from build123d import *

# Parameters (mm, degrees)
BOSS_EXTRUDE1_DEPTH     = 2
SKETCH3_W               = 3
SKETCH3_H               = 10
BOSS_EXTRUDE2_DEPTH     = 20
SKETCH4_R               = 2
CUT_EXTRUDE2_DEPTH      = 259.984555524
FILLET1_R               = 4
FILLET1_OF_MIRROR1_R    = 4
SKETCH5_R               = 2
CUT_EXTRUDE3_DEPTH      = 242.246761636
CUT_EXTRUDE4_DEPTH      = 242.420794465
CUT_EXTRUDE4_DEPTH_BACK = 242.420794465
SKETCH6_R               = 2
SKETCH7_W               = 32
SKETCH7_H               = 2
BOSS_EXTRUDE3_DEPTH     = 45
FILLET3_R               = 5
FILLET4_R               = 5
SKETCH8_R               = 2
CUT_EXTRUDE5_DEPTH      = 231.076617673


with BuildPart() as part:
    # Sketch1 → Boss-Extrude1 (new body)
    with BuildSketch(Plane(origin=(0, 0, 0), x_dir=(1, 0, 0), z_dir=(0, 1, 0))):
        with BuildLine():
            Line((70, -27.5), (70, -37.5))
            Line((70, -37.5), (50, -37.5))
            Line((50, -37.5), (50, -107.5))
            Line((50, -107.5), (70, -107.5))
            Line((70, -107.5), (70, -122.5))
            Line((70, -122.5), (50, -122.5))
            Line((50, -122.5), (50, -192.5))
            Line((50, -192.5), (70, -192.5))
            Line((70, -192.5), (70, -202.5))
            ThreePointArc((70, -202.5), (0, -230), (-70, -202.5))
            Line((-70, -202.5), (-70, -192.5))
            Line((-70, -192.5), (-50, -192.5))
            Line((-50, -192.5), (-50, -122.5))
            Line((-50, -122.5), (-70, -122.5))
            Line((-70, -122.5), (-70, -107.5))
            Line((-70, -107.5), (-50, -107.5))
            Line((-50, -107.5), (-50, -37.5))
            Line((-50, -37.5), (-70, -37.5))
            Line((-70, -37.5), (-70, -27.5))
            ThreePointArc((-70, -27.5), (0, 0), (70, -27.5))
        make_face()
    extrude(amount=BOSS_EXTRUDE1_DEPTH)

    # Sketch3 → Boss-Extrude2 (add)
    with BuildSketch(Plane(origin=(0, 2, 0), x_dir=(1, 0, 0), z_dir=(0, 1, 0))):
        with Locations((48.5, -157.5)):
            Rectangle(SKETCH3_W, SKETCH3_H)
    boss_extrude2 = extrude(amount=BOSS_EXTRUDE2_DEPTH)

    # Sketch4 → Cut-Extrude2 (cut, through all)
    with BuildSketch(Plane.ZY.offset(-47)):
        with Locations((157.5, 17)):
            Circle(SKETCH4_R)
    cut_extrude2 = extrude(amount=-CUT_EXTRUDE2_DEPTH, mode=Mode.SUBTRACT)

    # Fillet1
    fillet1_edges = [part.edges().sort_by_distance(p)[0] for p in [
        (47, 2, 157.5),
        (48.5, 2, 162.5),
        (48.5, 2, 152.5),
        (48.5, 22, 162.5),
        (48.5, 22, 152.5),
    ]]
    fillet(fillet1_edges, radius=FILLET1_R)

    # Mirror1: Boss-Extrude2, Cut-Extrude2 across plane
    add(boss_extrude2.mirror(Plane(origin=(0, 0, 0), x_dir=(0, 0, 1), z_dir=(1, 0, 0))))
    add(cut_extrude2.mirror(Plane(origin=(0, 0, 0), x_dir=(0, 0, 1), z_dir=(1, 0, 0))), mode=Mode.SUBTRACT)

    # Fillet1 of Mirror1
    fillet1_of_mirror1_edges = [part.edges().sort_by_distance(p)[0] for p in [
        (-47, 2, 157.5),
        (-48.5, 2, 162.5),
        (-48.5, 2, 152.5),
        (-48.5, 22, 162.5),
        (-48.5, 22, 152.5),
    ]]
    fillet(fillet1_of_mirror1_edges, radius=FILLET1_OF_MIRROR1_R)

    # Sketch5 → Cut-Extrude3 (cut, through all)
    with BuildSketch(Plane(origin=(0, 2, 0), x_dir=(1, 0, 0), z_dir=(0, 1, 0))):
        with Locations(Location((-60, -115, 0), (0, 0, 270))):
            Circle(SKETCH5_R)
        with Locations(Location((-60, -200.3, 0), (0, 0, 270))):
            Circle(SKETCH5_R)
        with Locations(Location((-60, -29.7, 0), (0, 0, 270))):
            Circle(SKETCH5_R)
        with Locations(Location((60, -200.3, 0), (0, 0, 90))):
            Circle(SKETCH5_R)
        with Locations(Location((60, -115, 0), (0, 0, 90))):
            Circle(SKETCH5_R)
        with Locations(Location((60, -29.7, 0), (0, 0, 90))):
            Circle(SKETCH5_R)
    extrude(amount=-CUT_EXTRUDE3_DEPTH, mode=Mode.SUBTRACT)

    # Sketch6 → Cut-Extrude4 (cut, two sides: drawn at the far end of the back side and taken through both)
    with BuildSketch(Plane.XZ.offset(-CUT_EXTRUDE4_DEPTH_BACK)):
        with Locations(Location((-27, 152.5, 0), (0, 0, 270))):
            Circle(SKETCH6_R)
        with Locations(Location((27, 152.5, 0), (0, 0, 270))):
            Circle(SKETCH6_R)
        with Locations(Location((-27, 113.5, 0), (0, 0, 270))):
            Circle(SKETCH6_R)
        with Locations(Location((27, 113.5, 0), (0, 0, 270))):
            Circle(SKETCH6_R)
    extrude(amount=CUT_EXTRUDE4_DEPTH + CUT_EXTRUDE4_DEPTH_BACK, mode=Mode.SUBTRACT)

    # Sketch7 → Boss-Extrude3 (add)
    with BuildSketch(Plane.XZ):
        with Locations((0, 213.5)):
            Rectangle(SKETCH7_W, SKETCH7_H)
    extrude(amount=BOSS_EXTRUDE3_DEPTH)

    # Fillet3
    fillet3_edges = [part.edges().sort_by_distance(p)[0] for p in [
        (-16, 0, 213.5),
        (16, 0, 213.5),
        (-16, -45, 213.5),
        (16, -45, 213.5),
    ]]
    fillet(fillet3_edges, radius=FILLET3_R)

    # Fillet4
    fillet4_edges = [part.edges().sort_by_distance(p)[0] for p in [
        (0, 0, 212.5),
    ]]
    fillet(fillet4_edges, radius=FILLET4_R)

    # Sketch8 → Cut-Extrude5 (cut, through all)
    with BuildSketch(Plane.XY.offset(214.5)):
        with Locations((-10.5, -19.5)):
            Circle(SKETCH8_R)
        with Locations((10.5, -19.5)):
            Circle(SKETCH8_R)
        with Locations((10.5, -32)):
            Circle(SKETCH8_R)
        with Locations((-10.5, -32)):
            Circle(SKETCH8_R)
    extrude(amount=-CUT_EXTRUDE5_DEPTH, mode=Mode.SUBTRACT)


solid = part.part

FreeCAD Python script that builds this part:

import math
import FreeCAD as App
import Part
import Sketcher
from FreeCAD import Vector


def edges_at(feature, points):
    """Names of the edges that pass closest to the given points."""
    edges = feature.Shape.Edges
    near = lambda p: min(range(len(edges)), key=lambda i: edges[i].distToShape(Part.Vertex(*p))[0])
    return sorted({f"Edge{near(p) + 1}" for p in points})

doc = App.newDocument("Part")
body = doc.addObject("PartDesign::Body", "Body")

# Sketch on XZ plane
sketch1 = doc.addObject("Sketcher::SketchObject", "Sketch")
body.addObject(sketch1)
sketch1.AttachmentSupport = (doc.XZ_Plane, [""])
sketch1.MapMode = "FlatFace"
sketch1.addGeometry(Part.LineSegment(Vector(70, 38, 0), Vector(70, 28, 0)), False)
sketch1.addGeometry(Part.ArcOfCircle(Part.Circle(Vector(0, 103, 0), Vector(0, 0, 1), 103), math.radians(-133), math.radians(-47)), False)
sketch1.addGeometry(Part.LineSegment(Vector(-70, 28, 0), Vector(-70, 38, 0)), False)
sketch1.addGeometry(Part.LineSegment(Vector(-70, 38, 0), Vector(-50, 38, 0)), False)
sketch1.addGeometry(Part.LineSegment(Vector(-50, 38, 0), Vector(-50, 108, 0)), False)
sketch1.addGeometry(Part.LineSegment(Vector(-50, 108, 0), Vector(-70, 108, 0)), False)
sketch1.addGeometry(Part.LineSegment(Vector(-70, 108, 0), Vector(-70, 122, 0)), False)
sketch1.addGeometry(Part.LineSegment(Vector(-70, 122, 0), Vector(-50, 122, 0)), False)
sketch1.addGeometry(Part.LineSegment(Vector(-50, 122, 0), Vector(-50, 192, 0)), False)
sketch1.addGeometry(Part.LineSegment(Vector(-50, 192, 0), Vector(-70, 192, 0)), False)
sketch1.addGeometry(Part.LineSegment(Vector(-70, 192, 0), Vector(-70, 202, 0)), False)
sketch1.addGeometry(Part.ArcOfCircle(Part.Circle(Vector(0, 127, 0), Vector(0, 0, 1), 103), math.radians(47), math.radians(133)), False)
sketch1.addGeometry(Part.LineSegment(Vector(70, 202, 0), Vector(70, 192, 0)), False)
sketch1.addGeometry(Part.LineSegment(Vector(70, 192, 0), Vector(50, 192, 0)), False)
sketch1.addGeometry(Part.LineSegment(Vector(50, 192, 0), Vector(50, 122, 0)), False)
sketch1.addGeometry(Part.LineSegment(Vector(50, 122, 0), Vector(70, 122, 0)), False)
sketch1.addGeometry(Part.LineSegment(Vector(70, 122, 0), Vector(70, 108, 0)), False)
sketch1.addGeometry(Part.LineSegment(Vector(70, 108, 0), Vector(50, 108, 0)), False)
sketch1.addGeometry(Part.LineSegment(Vector(50, 108, 0), Vector(50, 38, 0)), False)
sketch1.addGeometry(Part.LineSegment(Vector(50, 38, 0), Vector(70, 38, 0)), False)
sketch1.addConstraint(Sketcher.Constraint("Coincident", 0, 2, 1, 2))
sketch1.addConstraint(Sketcher.Constraint("Coincident", 1, 1, 2, 1))
sketch1.addConstraint(Sketcher.Constraint("Coincident", 2, 2, 3, 1))
sketch1.addConstraint(Sketcher.Constraint("Coincident", 3, 2, 4, 1))
sketch1.addConstraint(Sketcher.Constraint("Coincident", 4, 2, 5, 1))
sketch1.addConstraint(Sketcher.Constraint("Coincident", 5, 2, 6, 1))
sketch1.addConstraint(Sketcher.Constraint("Coincident", 6, 2, 7, 1))
sketch1.addConstraint(Sketcher.Constraint("Coincident", 7, 2, 8, 1))
sketch1.addConstraint(Sketcher.Constraint("Coincident", 8, 2, 9, 1))
sketch1.addConstraint(Sketcher.Constraint("Coincident", 9, 2, 10, 1))
sketch1.addConstraint(Sketcher.Constraint("Coincident", 10, 2, 11, 2))
sketch1.addConstraint(Sketcher.Constraint("Coincident", 11, 1, 12, 1))
sketch1.addConstraint(Sketcher.Constraint("Coincident", 12, 2, 13, 1))
sketch1.addConstraint(Sketcher.Constraint("Coincident", 13, 2, 14, 1))
sketch1.addConstraint(Sketcher.Constraint("Coincident", 14, 2, 15, 1))
sketch1.addConstraint(Sketcher.Constraint("Coincident", 15, 2, 16, 1))
sketch1.addConstraint(Sketcher.Constraint("Coincident", 16, 2, 17, 1))
sketch1.addConstraint(Sketcher.Constraint("Coincident", 17, 2, 18, 1))
sketch1.addConstraint(Sketcher.Constraint("Coincident", 18, 2, 19, 1))
sketch1.addConstraint(Sketcher.Constraint("Coincident", 19, 2, 0, 1))
sketch1.addConstraint(Sketcher.Constraint("Vertical", 0))
sketch1.addConstraint(Sketcher.Constraint("Vertical", 2))
sketch1.addConstraint(Sketcher.Constraint("Horizontal", 3))
sketch1.addConstraint(Sketcher.Constraint("Vertical", 4))
sketch1.addConstraint(Sketcher.Constraint("Horizontal", 5))
sketch1.addConstraint(Sketcher.Constraint("Vertical", 6))
sketch1.addConstraint(Sketcher.Constraint("Horizontal", 7))
sketch1.addConstraint(Sketcher.Constraint("Vertical", 8))
sketch1.addConstraint(Sketcher.Constraint("Horizontal", 9))
sketch1.addConstraint(Sketcher.Constraint("Vertical", 10))
sketch1.addConstraint(Sketcher.Constraint("Vertical", 12))
sketch1.addConstraint(Sketcher.Constraint("Horizontal", 13))
sketch1.addConstraint(Sketcher.Constraint("Vertical", 14))
sketch1.addConstraint(Sketcher.Constraint("Horizontal", 15))
sketch1.addConstraint(Sketcher.Constraint("Vertical", 16))
sketch1.addConstraint(Sketcher.Constraint("Horizontal", 17))
sketch1.addConstraint(Sketcher.Constraint("Vertical", 18))
sketch1.addConstraint(Sketcher.Constraint("Horizontal", 19))
sketch1.addConstraint(Sketcher.Constraint("Equal", 1, 11))
sketch1.addConstraint(Sketcher.Constraint("Symmetric", 0, 2, 1, 1, -2))
sketch1.addConstraint(Sketcher.Constraint("Symmetric", 10, 2, 11, 1, -2))
sketch1.addConstraint(Sketcher.Constraint("Symmetric", 8, 2, 13, 2, -2))
sketch1.addConstraint(Sketcher.Constraint("Symmetric", 6, 2, 15, 2, -2))
sketch1.addConstraint(Sketcher.Constraint("Symmetric", 4, 2, 17, 2, -2))
sketch1.addConstraint(Sketcher.Constraint("Horizontal", 3, 2, 18, 2))
sketch1.addConstraint(Sketcher.Constraint("Vertical", 2, 2, 5, 2))
sketch1.addConstraint(Sketcher.Constraint("Vertical", 4, 2, 7, 2))
sketch1.addConstraint(Sketcher.Constraint("Vertical", 6, 2, 9, 2))
sketch1.addConstraint(Sketcher.Constraint("Equal", 4, 8))
sketch1.addConstraint(Sketcher.Constraint("Equal", 2, 10))
sketch1.addConstraint(Sketcher.Constraint("DistanceX", 3, 1, 3, 2, 20.0))
sketch1.addConstraint(Sketcher.Constraint("DistanceY", 0, 2, 0, 1, 10.0))
sketch1.addConstraint(Sketcher.Constraint("DistanceY", 4, 1, 4, 2, 70.0))
sketch1.addConstraint(Sketcher.Constraint("DistanceY", 6, 1, 6, 2, 15.0))
sketch1.addConstraint(Sketcher.Constraint("DistanceX", -1, 1, 0, 2, 70.0))
sketch1.addConstraint(Sketcher.Constraint("DistanceY", -1, 1, 0, 2, 27.5))
sketch1.addConstraint(Sketcher.Constraint("Radius", 1, 102.840909))
pad1 = doc.addObject("PartDesign::Pad", "Pad")
body.addObject(pad1)
pad1.Profile = sketch1
pad1.Length = 2
pad1.Reversed = True

# Sketch on XZ plane
sketch2 = doc.addObject("Sketcher::SketchObject", "Sketch001")
body.addObject(sketch2)
sketch2.AttachmentSupport = (doc.XZ_Plane, [""])
sketch2.MapMode = "FlatFace"
sketch2.AttachmentOffset = App.Placement(Vector(0, 0, -2), App.Rotation())
sketch2.addGeometry(Part.LineSegment(Vector(47, 152.5, 0), Vector(47, 162.5, 0)), False)
sketch2.addGeometry(Part.LineSegment(Vector(47, 162.5, 0), Vector(50, 162.5, 0)), False)
sketch2.addGeometry(Part.LineSegment(Vector(50, 162.5, 0), Vector(50, 152.5, 0)), False)
sketch2.addGeometry(Part.LineSegment(Vector(50, 152.5, 0), Vector(47, 152.5, 0)), False)
sketch2.addConstraint(Sketcher.Constraint("Coincident", 0, 2, 1, 1))
sketch2.addConstraint(Sketcher.Constraint("Coincident", 1, 2, 2, 1))
sketch2.addConstraint(Sketcher.Constraint("Coincident", 2, 2, 3, 1))
sketch2.addConstraint(Sketcher.Constraint("Coincident", 3, 2, 0, 1))
sketch2.addConstraint(Sketcher.Constraint("Vertical", 0))
sketch2.addConstraint(Sketcher.Constraint("Horizontal", 1))
sketch2.addConstraint(Sketcher.Constraint("Vertical", 2))
sketch2.addConstraint(Sketcher.Constraint("Horizontal", 3))
sketch2.addConstraint(Sketcher.Constraint("DistanceX", 1, 1, 1, 2, 3.0))
sketch2.addConstraint(Sketcher.Constraint("DistanceY", 0, 1, 0, 2, 10.0))
sketch2.addConstraint(Sketcher.Constraint("DistanceX", -1, 1, 0, 2, 47.0))
sketch2.addConstraint(Sketcher.Constraint("DistanceY", -1, 1, 0, 2, 162.5))
pad2 = doc.addObject("PartDesign::Pad", "Pad001")
body.addObject(pad2)
pad2.Profile = sketch2
pad2.Length = 20
pad2.Reversed = True

# Sketch on YZ plane
sketch3 = doc.addObject("Sketcher::SketchObject", "Sketch002")
body.addObject(sketch3)
sketch3.AttachmentSupport = (doc.YZ_Plane, [""])
sketch3.MapMode = "FlatFace"
sketch3.AttachmentOffset = App.Placement(Vector(0, 0, 47), App.Rotation())
sketch3.addGeometry(Part.Circle(Vector(17, 157.5, 0), Vector(0, 0, 1), 2), False)
sketch3.addConstraint(Sketcher.Constraint("Diameter", 0, 4.0))
sketch3.addConstraint(Sketcher.Constraint("DistanceX", -1, 1, 0, 3, 17.0))
sketch3.addConstraint(Sketcher.Constraint("DistanceY", -1, 1, 0, 3, 157.5))
pocket1 = doc.addObject("PartDesign::Pocket", "Pocket")
body.addObject(pocket1)
pocket1.Profile = sketch3
pocket1.Type = "ThroughAll"
pocket1.Reversed = True
doc.recompute()

fillet = doc.addObject("PartDesign::Fillet", "Fillet")
body.addObject(fillet)
fillet.Base = (pocket1, edges_at(pocket1, [
    (47, 2, 157.5),
    (48.5, 2, 162.5),
    (48.5, 2, 152.5),
    (48.5, 22, 162.5),
    (48.5, 22, 152.5),
]))
fillet.Radius = 4
doc.recompute()

mirrored = doc.addObject("PartDesign::Mirrored", "Mirrored")
body.addObject(mirrored)
mirrored.Originals = [pad2, pocket1]
mirrored.MirrorPlane = (doc.YZ_Plane, [""])
body.Tip = mirrored
doc.recompute()

fillet2 = doc.addObject("PartDesign::Fillet", "Fillet001")
body.addObject(fillet2)
fillet2.Base = (mirrored, edges_at(mirrored, [
    (-47, 2, 157.5),
    (-48.5, 2, 162.5),
    (-48.5, 2, 152.5),
    (-48.5, 22, 162.5),
    (-48.5, 22, 152.5),
]))
fillet2.Radius = 4

# Sketch on XZ plane
sketch4 = doc.addObject("Sketcher::SketchObject", "Sketch003")
body.addObject(sketch4)
sketch4.AttachmentSupport = (doc.XZ_Plane, [""])
sketch4.MapMode = "FlatFace"
sketch4.AttachmentOffset = App.Placement(Vector(0, 0, -2), App.Rotation())
sketch4.addGeometry(Part.Circle(Vector(-60, 115, 0), Vector(0, 0, 1), 2), False)
sketch4.addGeometry(Part.Circle(Vector(-60, 200.3, 0), Vector(0, 0, 1), 2), False)
sketch4.addGeometry(Part.Circle(Vector(-60, 29.7, 0), Vector(0, 0, 1), 2), False)
sketch4.addGeometry(Part.Circle(Vector(60, 200.3, 0), Vector(0, 0, 1), 2), False)
sketch4.addGeometry(Part.Circle(Vector(60, 115, 0), Vector(0, 0, 1), 2), False)
sketch4.addGeometry(Part.Circle(Vector(60, 29.7, 0), Vector(0, 0, 1), 2), False)
sketch4.addConstraint(Sketcher.Constraint("Equal", 0, 1))
sketch4.addConstraint(Sketcher.Constraint("Equal", 1, 2))
sketch4.addConstraint(Sketcher.Constraint("Equal", 2, 3))
sketch4.addConstraint(Sketcher.Constraint("Equal", 3, 4))
sketch4.addConstraint(Sketcher.Constraint("Equal", 4, 5))
sketch4.addConstraint(Sketcher.Constraint("Symmetric", 1, 3, 3, 3, -2))
sketch4.addConstraint(Sketcher.Constraint("Symmetric", 0, 3, 4, 3, -2))
sketch4.addConstraint(Sketcher.Constraint("Symmetric", 2, 3, 5, 3, -2))
sketch4.addConstraint(Sketcher.Constraint("Vertical", 0, 3, 1, 3))
sketch4.addConstraint(Sketcher.Constraint("Vertical", 1, 3, 2, 3))
sketch4.addConstraint(Sketcher.Constraint("Diameter", 0, 4.0))
sketch4.addConstraint(Sketcher.Constraint("DistanceX", 0, 3, -1, 1, 60.0))
sketch4.addConstraint(Sketcher.Constraint("DistanceY", -1, 1, 0, 3, 115.0))
sketch4.addConstraint(Sketcher.Constraint("DistanceY", -1, 1, 1, 3, 200.3))
sketch4.addConstraint(Sketcher.Constraint("DistanceY", -1, 1, 2, 3, 29.7))
pocket2 = doc.addObject("PartDesign::Pocket", "Pocket001")
body.addObject(pocket2)
pocket2.Profile = sketch4
pocket2.Type = "ThroughAll"
pocket2.Reversed = True

# Sketch on XZ plane
sketch5 = doc.addObject("Sketcher::SketchObject", "Sketch004")
body.addObject(sketch5)
sketch5.AttachmentSupport = (doc.XZ_Plane, [""])
sketch5.MapMode = "FlatFace"
sketch5.addGeometry(Part.Circle(Vector(-27, 152.5, 0), Vector(0, 0, 1), 2), False)
sketch5.addGeometry(Part.Circle(Vector(27, 152.5, 0), Vector(0, 0, 1), 2), False)
sketch5.addGeometry(Part.Circle(Vector(-27, 113.5, 0), Vector(0, 0, 1), 2), False)
sketch5.addGeometry(Part.Circle(Vector(27, 113.5, 0), Vector(0, 0, 1), 2), False)
sketch5.addConstraint(Sketcher.Constraint("Equal", 0, 1))
sketch5.addConstraint(Sketcher.Constraint("Equal", 1, 2))
sketch5.addConstraint(Sketcher.Constraint("Equal", 2, 3))
sketch5.addConstraint(Sketcher.Constraint("Symmetric", 0, 3, 1, 3, -2))
sketch5.addConstraint(Sketcher.Constraint("Symmetric", 2, 3, 3, 3, -2))
sketch5.addConstraint(Sketcher.Constraint("Vertical", 0, 3, 2, 3))
sketch5.addConstraint(Sketcher.Constraint("Diameter", 0, 4.0))
sketch5.addConstraint(Sketcher.Constraint("DistanceX", 0, 3, -1, 1, 27.0))
sketch5.addConstraint(Sketcher.Constraint("DistanceY", 2, 3, 0, 3, 39.0))
sketch5.addConstraint(Sketcher.Constraint("DistanceY", -1, 1, 0, 3, 152.5))
pocket3 = doc.addObject("PartDesign::Pocket", "Pocket002")
body.addObject(pocket3)
pocket3.Profile = sketch5
pocket3.Type = "ThroughAll"
pocket3.Midplane = True

# Sketch on XZ plane
sketch6 = doc.addObject("Sketcher::SketchObject", "Sketch005")
body.addObject(sketch6)
sketch6.AttachmentSupport = (doc.XZ_Plane, [""])
sketch6.MapMode = "FlatFace"
sketch6.addGeometry(Part.LineSegment(Vector(-16, 214.5, 0), Vector(-16, 212.5, 0)), False)
sketch6.addGeometry(Part.LineSegment(Vector(-16, 212.5, 0), Vector(16, 212.5, 0)), False)
sketch6.addGeometry(Part.LineSegment(Vector(16, 212.5, 0), Vector(16, 214.5, 0)), False)
sketch6.addGeometry(Part.LineSegment(Vector(16, 214.5, 0), Vector(-16, 214.5, 0)), False)
sketch6.addConstraint(Sketcher.Constraint("Coincident", 0, 2, 1, 1))
sketch6.addConstraint(Sketcher.Constraint("Coincident", 1, 2, 2, 1))
sketch6.addConstraint(Sketcher.Constraint("Coincident", 2, 2, 3, 1))
sketch6.addConstraint(Sketcher.Constraint("Coincident", 3, 2, 0, 1))
sketch6.addConstraint(Sketcher.Constraint("Vertical", 0))
sketch6.addConstraint(Sketcher.Constraint("Horizontal", 1))
sketch6.addConstraint(Sketcher.Constraint("Vertical", 2))
sketch6.addConstraint(Sketcher.Constraint("Horizontal", 3))
sketch6.addConstraint(Sketcher.Constraint("DistanceX", 1, 1, 1, 2, 32.0))
sketch6.addConstraint(Sketcher.Constraint("DistanceY", 0, 2, 0, 1, 2.0))
sketch6.addConstraint(Sketcher.Constraint("DistanceX", 0, 2, -1, 1, 16.0))
sketch6.addConstraint(Sketcher.Constraint("DistanceY", -1, 1, 0, 2, 212.5))
pad3 = doc.addObject("PartDesign::Pad", "Pad002")
body.addObject(pad3)
pad3.Profile = sketch6
pad3.Length = 45
doc.recompute()

fillet3 = doc.addObject("PartDesign::Fillet", "Fillet002")
body.addObject(fillet3)
fillet3.Base = (pad3, edges_at(pad3, [
    (-16, 0, 213.5),
    (16, 0, 213.5),
    (-16, -45, 213.5),
    (16, -45, 213.5),
]))
fillet3.Radius = 5
doc.recompute()

fillet4 = doc.addObject("PartDesign::Fillet", "Fillet003")
body.addObject(fillet4)
fillet4.Base = (fillet3, edges_at(fillet3, [(0, 0, 212.5)]))
fillet4.Radius = 5

# Sketch on XY plane
sketch7 = doc.addObject("Sketcher::SketchObject", "Sketch006")
body.addObject(sketch7)
sketch7.AttachmentSupport = (doc.XY_Plane, [""])
sketch7.MapMode = "FlatFace"
sketch7.AttachmentOffset = App.Placement(Vector(0, 0, 214.5), App.Rotation())
sketch7.addGeometry(Part.Circle(Vector(-10.5, -19.5, 0), Vector(0, 0, 1), 2), False)
sketch7.addGeometry(Part.Circle(Vector(10.5, -19.5, 0), Vector(0, 0, 1), 2), False)
sketch7.addGeometry(Part.Circle(Vector(10.5, -32, 0), Vector(0, 0, 1), 2), False)
sketch7.addGeometry(Part.Circle(Vector(-10.5, -32, 0), Vector(0, 0, 1), 2), False)
sketch7.addConstraint(Sketcher.Constraint("Equal", 0, 1))
sketch7.addConstraint(Sketcher.Constraint("Equal", 1, 2))
sketch7.addConstraint(Sketcher.Constraint("Equal", 2, 3))
sketch7.addConstraint(Sketcher.Constraint("Symmetric", 0, 3, 1, 3, -2))
sketch7.addConstraint(Sketcher.Constraint("Symmetric", 2, 3, 3, 3, -2))
sketch7.addConstraint(Sketcher.Constraint("Vertical", 1, 3, 2, 3))
sketch7.addConstraint(Sketcher.Constraint("Diameter", 0, 4.0))
sketch7.addConstraint(Sketcher.Constraint("DistanceY", 2, 3, -1, 1, 32.0))
sketch7.addConstraint(Sketcher.Constraint("DistanceX", 0, 3, 1, 3, 21.0))
sketch7.addConstraint(Sketcher.Constraint("DistanceY", 0, 3, -1, 1, 19.5))
pocket4 = doc.addObject("PartDesign::Pocket", "Pocket003")
body.addObject(pocket4)
pocket4.Profile = sketch7
pocket4.Type = "ThroughAll"

doc.recompute()
